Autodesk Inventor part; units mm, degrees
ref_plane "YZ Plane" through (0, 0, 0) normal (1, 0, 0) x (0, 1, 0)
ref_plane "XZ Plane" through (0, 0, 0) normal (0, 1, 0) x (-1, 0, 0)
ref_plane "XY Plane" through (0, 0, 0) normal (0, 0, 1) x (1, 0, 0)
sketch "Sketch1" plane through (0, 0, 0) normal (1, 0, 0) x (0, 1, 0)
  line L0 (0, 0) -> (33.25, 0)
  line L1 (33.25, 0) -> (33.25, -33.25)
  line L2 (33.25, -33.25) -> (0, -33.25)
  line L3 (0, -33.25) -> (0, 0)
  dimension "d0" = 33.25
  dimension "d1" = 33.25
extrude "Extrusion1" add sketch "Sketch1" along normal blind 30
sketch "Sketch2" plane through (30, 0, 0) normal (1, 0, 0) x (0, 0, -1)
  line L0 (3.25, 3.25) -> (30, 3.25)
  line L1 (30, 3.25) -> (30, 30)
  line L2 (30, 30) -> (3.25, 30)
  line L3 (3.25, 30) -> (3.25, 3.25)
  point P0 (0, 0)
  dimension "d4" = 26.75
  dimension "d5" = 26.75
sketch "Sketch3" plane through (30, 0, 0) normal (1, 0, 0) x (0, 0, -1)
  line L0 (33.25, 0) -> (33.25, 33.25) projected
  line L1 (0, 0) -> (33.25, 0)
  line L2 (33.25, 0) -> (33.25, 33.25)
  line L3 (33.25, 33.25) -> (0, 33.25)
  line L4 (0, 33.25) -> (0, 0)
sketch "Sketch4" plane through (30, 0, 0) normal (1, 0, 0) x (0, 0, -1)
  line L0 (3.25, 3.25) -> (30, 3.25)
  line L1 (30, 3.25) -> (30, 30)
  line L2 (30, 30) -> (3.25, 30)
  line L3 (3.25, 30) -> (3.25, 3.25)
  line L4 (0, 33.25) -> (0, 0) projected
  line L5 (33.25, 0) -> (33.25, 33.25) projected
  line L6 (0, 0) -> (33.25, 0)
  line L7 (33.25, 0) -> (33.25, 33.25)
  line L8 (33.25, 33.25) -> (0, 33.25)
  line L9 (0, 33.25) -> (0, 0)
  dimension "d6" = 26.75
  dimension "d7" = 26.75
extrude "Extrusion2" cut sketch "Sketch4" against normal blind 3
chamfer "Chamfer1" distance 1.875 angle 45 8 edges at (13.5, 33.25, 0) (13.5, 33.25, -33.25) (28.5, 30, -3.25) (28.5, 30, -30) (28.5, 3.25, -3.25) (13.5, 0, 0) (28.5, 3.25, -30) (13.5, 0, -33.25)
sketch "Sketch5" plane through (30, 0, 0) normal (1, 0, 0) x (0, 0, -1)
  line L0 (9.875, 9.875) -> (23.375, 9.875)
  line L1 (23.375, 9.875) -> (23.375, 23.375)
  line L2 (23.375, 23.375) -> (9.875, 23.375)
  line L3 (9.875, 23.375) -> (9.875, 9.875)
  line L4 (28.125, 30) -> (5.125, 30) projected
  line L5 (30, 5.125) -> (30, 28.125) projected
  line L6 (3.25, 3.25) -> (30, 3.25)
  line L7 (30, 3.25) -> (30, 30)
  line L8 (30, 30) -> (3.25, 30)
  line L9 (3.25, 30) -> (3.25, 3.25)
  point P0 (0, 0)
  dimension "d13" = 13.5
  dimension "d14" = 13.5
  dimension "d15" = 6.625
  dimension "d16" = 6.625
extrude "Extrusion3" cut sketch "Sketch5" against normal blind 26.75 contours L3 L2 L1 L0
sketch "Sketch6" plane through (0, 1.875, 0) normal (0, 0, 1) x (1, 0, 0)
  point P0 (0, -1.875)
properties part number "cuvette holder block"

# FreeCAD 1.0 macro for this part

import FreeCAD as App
import Part
import Sketcher


def edges_at(feature, points):
    """Names of the edges that pass closest to the given points."""
    edges = feature.Shape.Edges
    near = lambda p: min(range(len(edges)), key=lambda i: edges[i].distToShape(Part.Vertex(*p))[0])
    return sorted({f"Edge{near(p) + 1}" for p in points})

doc = App.newDocument("Part")
params = doc.addObject("Spreadsheet::Sheet", "Params")
for row, (alias, value) in enumerate([
    ("sketch1_width", "33.25 mm"),
    ("pad1_length", "30 mm"),
    ("sketch2_width", "26.75 mm"),
    ("pocket1_length", "3 mm"),
    ("chamfer_size", "1.875 mm"),
    ("sketch3_width", "13.5 mm"),
    ("pocket2_length", "26.75 mm"),
], start=1):
    params.set(f"A{row}", alias)
    params.set(f"B{row}", "=" + value)
    params.setAlias(f"B{row}", alias)

body = doc.addObject("PartDesign::Body", "Body")

sketch1 = body.newObject("Sketcher::SketchObject", "Sketch")
sketch1.AttachmentSupport = (doc.getObject("YZ_Plane"), [""])
sketch1.MapMode = "FlatFace"
sketch1.addGeometry([
    Part.LineSegment(App.Vector(33, 0, 0), App.Vector(0, 0, 0)),
    Part.LineSegment(App.Vector(0, 0, 0), App.Vector(0, -33, 0)),
    Part.LineSegment(App.Vector(0, -33, 0), App.Vector(33, -33, 0)),
    Part.LineSegment(App.Vector(33, -33, 0), App.Vector(33, 0, 0)),
], False)
sketch1.addConstraint([
    Sketcher.Constraint("Coincident", 0, 2, 1, 1),
    Sketcher.Constraint("Coincident", 1, 2, 2, 1),
    Sketcher.Constraint("Coincident", 2, 2, 3, 1),
    Sketcher.Constraint("Coincident", 3, 2, 0, 1),
    Sketcher.Constraint("Horizontal", 0),
    Sketcher.Constraint("Vertical", 1),
    Sketcher.Constraint("Horizontal", 2),
    Sketcher.Constraint("Vertical", 3),
    Sketcher.Constraint("Coincident", 0, 2, -1, 1),
    Sketcher.Constraint("Equal", 2, 1),
    Sketcher.Constraint("DistanceX", 0, 2, 0, 1, 33.25),
])
sketch1.setExpression("Constraints[10]", "Params.sketch1_width")
pad1 = body.newObject("PartDesign::Pad", "Pad")
pad1.Profile = sketch1
pad1.setExpression("Length", "Params.pad1_length")

sketch2 = body.newObject("Sketcher::SketchObject", "Sketch001")
sketch2.AttachmentSupport = (doc.getObject("YZ_Plane"), [""])
sketch2.MapMode = "FlatFace"
sketch2.AttachmentOffset = App.Placement(App.Vector(0, 0, 30), App.Rotation())
sketch2.addGeometry([
    Part.LineSegment(App.Vector(33, -33, 0), App.Vector(33, 0, 0)),
    Part.LineSegment(App.Vector(33, 0, 0), App.Vector(0, 0, 0)),
    Part.LineSegment(App.Vector(0, 0, 0), App.Vector(0, -33, 0)),
    Part.LineSegment(App.Vector(0, -33, 0), App.Vector(33, -33, 0)),
    Part.LineSegment(App.Vector(3, -30, 0), App.Vector(3, -3, 0)),
    Part.LineSegment(App.Vector(3, -3, 0), App.Vector(30, -3, 0)),
    Part.LineSegment(App.Vector(30, -3, 0), App.Vector(30, -30, 0)),
    Part.LineSegment(App.Vector(30, -30, 0), App.Vector(3, -30, 0)),
], False)
sketch2.addConstraint([
    Sketcher.Constraint("Coincident", 0, 2, 1, 1),
    Sketcher.Constraint("Coincident", 1, 2, 2, 1),
    Sketcher.Constraint("Coincident", 2, 2, 3, 1),
    Sketcher.Constraint("Coincident", 3, 2, 0, 1),
    Sketcher.Constraint("Coincident", 4, 2, 5, 1),
    Sketcher.Constraint("Coincident", 5, 2, 6, 1),
    Sketcher.Constraint("Coincident", 6, 2, 7, 1),
    Sketcher.Constraint("Coincident", 7, 2, 4, 1),
    Sketcher.Constraint("Vertical", 0),
    Sketcher.Constraint("Horizontal", 1),
    Sketcher.Constraint("Vertical", 2),
    Sketcher.Constraint("Horizontal", 3),
    Sketcher.Constraint("Vertical", 4),
    Sketcher.Constraint("Horizontal", 5),
    Sketcher.Constraint("Vertical", 6),
    Sketcher.Constraint("Horizontal", 7),
    Sketcher.Constraint("Coincident", 1, 2, -1, 1),
    Sketcher.Constraint("Equal", 3, 0),
    Sketcher.Constraint("Equal", 7, 4),
    Sketcher.Constraint("DistanceX", 5, 1, 5, 2, 26.75),
    Sketcher.Constraint("DistanceX", -1, 1, 5, 2, 30.0),
    Sketcher.Constraint("DistanceY", 6, 2, -1, 1, 30.0),
    Sketcher.Constraint("DistanceX", 4, 2, 0, 2, 30.0),
])
sketch2.setExpression("Constraints[19]", "Params.sketch2_width")
pocket1 = body.newObject("PartDesign::Pocket", "Pocket")
pocket1.Profile = sketch2
pocket1.setExpression("Length", "Params.pocket1_length")
doc.recompute()

chamfer = body.newObject("PartDesign::Chamfer", "Chamfer")
chamfer.Base = (pocket1, edges_at(pocket1, [
    (13.5, 33.25, 0),
    (13.5, 33.25, -33.25),
    (28.5, 30, -3.25),
    (28.5, 30, -30),
    (28.5, 3.25, -3.25),
    (13.5, 0, 0),
    (28.5, 3.25, -30),
    (13.5, 0, -33.25),
]))
chamfer.setExpression("Size", "Params.chamfer_size")

sketch3 = body.newObject("Sketcher::SketchObject", "Sketch002")
sketch3.AttachmentSupport = (doc.getObject("YZ_Plane"), [""])
sketch3.MapMode = "FlatFace"
sketch3.AttachmentOffset = App.Placement(App.Vector(0, 0, 30), App.Rotation())
sketch3.addGeometry([
    Part.LineSegment(App.Vector(23, -10, 0), App.Vector(10, -10, 0)),
    Part.LineSegment(App.Vector(10, -10, 0), App.Vector(10, -23, 0)),
    Part.LineSegment(App.Vector(10, -23, 0), App.Vector(23, -23, 0)),
    Part.LineSegment(App.Vector(23, -23, 0), App.Vector(23, -10, 0)),
], False)
sketch3.addConstraint([
    Sketcher.Constraint("Coincident", 0, 2, 1, 1),
    Sketcher.Constraint("Coincident", 1, 2, 2, 1),
    Sketcher.Constraint("Coincident", 2, 2, 3, 1),
    Sketcher.Constraint("Coincident", 3, 2, 0, 1),
    Sketcher.Constraint("Horizontal", 0),
    Sketcher.Constraint("Vertical", 1),
    Sketcher.Constraint("Horizontal", 2),
    Sketcher.Constraint("Vertical", 3),
    Sketcher.Constraint("Equal", 2, 1),
    Sketcher.Constraint("DistanceX", 0, 2, 0, 1, 13.5),
    Sketcher.Constraint("DistanceX", -1, 1, 0, 2, 9.875),
    Sketcher.Constraint("DistanceY", 0, 2, -1, 1, 9.875),
])
sketch3.setExpression("Constraints[9]", "Params.sketch3_width")
pocket2 = body.newObject("PartDesign::Pocket", "Pocket001")
pocket2.Profile = sketch3
pocket2.setExpression("Length", "Params.pocket2_length")

doc.recompute()
